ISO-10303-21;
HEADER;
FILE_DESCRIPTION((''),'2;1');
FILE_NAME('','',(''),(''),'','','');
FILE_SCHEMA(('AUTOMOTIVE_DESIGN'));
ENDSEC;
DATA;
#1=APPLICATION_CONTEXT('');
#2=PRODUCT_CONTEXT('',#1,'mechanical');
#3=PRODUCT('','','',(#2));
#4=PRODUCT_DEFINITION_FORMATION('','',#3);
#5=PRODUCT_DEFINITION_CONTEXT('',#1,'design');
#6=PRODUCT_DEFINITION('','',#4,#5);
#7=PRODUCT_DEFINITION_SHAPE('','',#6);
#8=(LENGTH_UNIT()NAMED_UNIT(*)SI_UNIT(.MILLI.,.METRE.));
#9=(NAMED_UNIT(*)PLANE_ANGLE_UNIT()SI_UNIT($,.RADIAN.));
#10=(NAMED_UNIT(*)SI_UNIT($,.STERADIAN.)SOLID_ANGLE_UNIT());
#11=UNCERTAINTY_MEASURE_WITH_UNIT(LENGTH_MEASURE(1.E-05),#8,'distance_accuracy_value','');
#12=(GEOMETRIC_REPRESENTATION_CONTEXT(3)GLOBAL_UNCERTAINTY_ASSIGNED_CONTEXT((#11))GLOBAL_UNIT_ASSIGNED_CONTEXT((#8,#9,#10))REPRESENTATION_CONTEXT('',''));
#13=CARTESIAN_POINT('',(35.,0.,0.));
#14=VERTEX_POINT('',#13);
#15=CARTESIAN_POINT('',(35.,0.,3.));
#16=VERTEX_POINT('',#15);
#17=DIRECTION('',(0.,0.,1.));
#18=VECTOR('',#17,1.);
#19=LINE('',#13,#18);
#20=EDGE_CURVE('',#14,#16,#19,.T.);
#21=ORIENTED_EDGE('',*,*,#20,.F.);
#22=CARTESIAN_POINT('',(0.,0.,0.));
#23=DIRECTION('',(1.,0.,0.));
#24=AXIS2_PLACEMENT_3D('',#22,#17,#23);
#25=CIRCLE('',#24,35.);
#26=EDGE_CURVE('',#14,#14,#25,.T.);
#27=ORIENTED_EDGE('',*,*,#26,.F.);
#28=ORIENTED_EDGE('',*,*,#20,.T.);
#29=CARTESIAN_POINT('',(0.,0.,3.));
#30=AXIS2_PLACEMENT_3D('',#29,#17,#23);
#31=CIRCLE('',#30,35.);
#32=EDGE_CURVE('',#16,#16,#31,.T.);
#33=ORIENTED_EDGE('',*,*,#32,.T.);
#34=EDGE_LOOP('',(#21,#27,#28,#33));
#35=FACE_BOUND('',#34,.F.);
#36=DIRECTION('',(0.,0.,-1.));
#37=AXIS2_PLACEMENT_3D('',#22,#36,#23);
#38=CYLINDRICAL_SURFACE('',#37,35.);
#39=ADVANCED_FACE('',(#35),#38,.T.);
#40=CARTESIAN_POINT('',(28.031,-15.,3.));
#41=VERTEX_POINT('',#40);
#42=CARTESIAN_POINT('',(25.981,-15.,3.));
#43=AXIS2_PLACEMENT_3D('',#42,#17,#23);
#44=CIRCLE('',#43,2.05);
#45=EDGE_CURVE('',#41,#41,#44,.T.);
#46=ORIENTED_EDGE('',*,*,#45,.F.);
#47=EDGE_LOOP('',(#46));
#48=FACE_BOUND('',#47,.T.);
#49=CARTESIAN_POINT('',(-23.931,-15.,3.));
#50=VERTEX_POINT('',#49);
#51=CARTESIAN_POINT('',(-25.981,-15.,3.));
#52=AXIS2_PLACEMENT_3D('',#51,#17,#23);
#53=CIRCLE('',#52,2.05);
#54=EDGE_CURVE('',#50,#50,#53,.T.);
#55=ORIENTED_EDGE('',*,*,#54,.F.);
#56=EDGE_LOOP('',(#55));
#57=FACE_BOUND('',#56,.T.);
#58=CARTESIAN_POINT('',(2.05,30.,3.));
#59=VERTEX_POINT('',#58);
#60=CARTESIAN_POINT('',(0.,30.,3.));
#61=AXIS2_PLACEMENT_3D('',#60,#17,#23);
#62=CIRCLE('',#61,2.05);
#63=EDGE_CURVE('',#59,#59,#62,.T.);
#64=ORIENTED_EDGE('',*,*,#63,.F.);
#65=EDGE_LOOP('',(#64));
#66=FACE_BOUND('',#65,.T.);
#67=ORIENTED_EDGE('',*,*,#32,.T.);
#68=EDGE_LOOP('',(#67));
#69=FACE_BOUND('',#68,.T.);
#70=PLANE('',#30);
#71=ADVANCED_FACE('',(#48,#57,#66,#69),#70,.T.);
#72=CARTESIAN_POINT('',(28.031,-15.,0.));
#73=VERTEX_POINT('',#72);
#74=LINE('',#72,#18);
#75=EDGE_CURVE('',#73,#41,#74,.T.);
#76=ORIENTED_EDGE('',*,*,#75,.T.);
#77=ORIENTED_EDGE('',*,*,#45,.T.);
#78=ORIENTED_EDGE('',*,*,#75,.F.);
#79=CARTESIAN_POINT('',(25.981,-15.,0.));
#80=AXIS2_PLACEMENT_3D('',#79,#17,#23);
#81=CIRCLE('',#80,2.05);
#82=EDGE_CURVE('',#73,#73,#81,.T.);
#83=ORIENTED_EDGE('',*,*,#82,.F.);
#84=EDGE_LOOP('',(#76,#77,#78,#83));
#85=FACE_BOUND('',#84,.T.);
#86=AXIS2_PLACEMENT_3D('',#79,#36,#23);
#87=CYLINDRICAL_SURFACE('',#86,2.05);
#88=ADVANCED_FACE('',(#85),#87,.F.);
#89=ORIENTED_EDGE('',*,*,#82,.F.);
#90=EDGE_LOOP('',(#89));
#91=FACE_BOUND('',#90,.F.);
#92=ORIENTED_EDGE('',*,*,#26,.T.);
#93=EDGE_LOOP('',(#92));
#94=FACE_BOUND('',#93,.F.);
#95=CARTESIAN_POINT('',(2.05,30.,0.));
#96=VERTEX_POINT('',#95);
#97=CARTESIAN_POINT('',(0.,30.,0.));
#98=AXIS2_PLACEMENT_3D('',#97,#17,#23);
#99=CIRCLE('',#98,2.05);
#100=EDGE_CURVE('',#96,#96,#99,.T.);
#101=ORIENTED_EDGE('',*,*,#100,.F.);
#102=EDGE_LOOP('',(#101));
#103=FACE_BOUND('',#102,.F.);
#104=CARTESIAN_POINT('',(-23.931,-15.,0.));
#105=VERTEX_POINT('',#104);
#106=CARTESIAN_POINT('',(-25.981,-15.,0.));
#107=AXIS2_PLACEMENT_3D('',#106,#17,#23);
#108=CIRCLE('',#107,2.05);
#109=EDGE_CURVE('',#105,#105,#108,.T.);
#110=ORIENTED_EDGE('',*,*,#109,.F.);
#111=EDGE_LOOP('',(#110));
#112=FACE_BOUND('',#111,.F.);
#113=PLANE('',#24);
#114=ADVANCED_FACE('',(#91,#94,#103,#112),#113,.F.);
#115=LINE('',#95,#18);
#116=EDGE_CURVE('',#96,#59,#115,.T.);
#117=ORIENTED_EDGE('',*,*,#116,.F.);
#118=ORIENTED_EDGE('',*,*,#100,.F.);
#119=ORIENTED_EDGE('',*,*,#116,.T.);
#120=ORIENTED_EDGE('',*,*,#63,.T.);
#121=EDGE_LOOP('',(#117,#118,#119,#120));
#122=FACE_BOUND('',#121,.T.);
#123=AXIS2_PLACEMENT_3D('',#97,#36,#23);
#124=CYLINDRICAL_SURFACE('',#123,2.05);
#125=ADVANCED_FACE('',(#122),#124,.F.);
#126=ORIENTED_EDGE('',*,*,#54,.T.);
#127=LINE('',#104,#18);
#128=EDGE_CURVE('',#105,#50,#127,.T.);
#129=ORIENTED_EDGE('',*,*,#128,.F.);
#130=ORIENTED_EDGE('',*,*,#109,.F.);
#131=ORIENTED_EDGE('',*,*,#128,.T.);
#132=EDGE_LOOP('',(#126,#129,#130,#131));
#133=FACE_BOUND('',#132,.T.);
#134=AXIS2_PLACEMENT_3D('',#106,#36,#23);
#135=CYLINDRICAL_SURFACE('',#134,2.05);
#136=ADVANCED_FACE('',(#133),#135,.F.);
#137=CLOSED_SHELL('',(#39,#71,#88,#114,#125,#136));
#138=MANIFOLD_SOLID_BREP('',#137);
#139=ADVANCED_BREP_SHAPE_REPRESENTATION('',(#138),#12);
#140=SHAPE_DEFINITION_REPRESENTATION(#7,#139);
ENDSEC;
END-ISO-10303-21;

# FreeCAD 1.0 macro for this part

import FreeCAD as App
import Part
import Sketcher

doc = App.newDocument("Part")
body = doc.addObject("PartDesign::Body", "Body")

# Sketch on XY plane
sketch1 = body.newObject("Sketcher::SketchObject", "Sketch")
sketch1.AttachmentSupport = (doc.getObject("XY_Plane"), [""])
sketch1.MapMode = "FlatFace"
sketch1.addGeometry(Part.Circle(App.Vector(0, 0, 0), App.Vector(0, 0, 1), 35), False)
sketch1.addGeometry(Part.Circle(App.Vector(-26, -15, 0), App.Vector(0, 0, 1), 2), False)
sketch1.addGeometry(Part.Circle(App.Vector(26, -15, 0), App.Vector(0, 0, 1), 2), False)
sketch1.addGeometry(Part.Circle(App.Vector(0, 30, 0), App.Vector(0, 0, 1), 2), False)
sketch1.addConstraint(Sketcher.Constraint("Coincident", 0, 3, -1, 1))
sketch1.addConstraint(Sketcher.Constraint("Equal", 1, 2))
sketch1.addConstraint(Sketcher.Constraint("Equal", 2, 3))
sketch1.addConstraint(Sketcher.Constraint("Symmetric", 1, 3, 2, 3, -2))
sketch1.addConstraint(Sketcher.Constraint("PointOnObject", 3, 3, -2))
sketch1.addConstraint(Sketcher.Constraint("Diameter", 0, 70.0))
sketch1.addConstraint(Sketcher.Constraint("Diameter", 1, 4.1))
sketch1.addConstraint(Sketcher.Constraint("DistanceY", 1, 3, -1, 1, 15.0))
sketch1.addConstraint(Sketcher.Constraint("DistanceY", -1, 1, 3, 3, 30.0))
sketch1.addConstraint(Sketcher.Constraint("DistanceX", 1, 3, -1, 1, 25.981))
pad1 = body.newObject("PartDesign::Pad", "Pad")
pad1.Profile = sketch1
pad1.Length = 3

doc.recompute()
